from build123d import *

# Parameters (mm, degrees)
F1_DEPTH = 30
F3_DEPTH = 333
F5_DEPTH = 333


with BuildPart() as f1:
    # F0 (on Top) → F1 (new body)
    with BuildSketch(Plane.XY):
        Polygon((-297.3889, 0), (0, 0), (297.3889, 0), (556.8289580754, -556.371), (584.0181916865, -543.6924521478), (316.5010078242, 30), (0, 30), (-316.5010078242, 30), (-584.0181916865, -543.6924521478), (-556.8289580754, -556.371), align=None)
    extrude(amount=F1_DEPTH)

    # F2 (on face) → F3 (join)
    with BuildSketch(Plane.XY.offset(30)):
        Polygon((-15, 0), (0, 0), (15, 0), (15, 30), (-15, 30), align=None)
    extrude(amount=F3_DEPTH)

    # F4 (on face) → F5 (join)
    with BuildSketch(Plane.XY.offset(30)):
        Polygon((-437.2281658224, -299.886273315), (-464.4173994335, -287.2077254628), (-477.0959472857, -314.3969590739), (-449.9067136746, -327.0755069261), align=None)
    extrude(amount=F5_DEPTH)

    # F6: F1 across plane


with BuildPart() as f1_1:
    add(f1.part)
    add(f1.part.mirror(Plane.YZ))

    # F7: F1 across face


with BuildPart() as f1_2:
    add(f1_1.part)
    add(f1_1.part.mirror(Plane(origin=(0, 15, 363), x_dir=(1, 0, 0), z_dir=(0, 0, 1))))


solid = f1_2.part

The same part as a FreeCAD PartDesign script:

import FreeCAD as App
import Part
import Sketcher
from FreeCAD import Vector
Q = App.Units.Quantity

doc = App.newDocument("Part")
body = doc.addObject("PartDesign::Body", "Body")

# Sketch on XY plane
sketch1 = body.newObject("Sketcher::SketchObject", "Sketch")
sketch1.AttachmentSupport = (doc.getObject("XY_Plane"), [""])
sketch1.MapMode = "FlatFace"
sketch1.addGeometry(Part.LineSegment(Vector(-297, 0, 0), Vector(297, 0, 0)), False)
sketch1.addGeometry(Part.LineSegment(Vector(297, 0, 0), Vector(557, -556, 0)), False)
sketch1.addGeometry(Part.LineSegment(Vector(557, -556, 0), Vector(584, -544, 0)), False)
sketch1.addGeometry(Part.LineSegment(Vector(584, -544, 0), Vector(317, 30, 0)), False)
sketch1.addGeometry(Part.LineSegment(Vector(317, 30, 0), Vector(-317, 30, 0)), False)
sketch1.addGeometry(Part.LineSegment(Vector(-317, 30, 0), Vector(-584, -544, 0)), False)
sketch1.addGeometry(Part.LineSegment(Vector(-584, -544, 0), Vector(-557, -556, 0)), False)
sketch1.addGeometry(Part.LineSegment(Vector(-557, -556, 0), Vector(-297, 0, 0)), False)
sketch1.addConstraint(Sketcher.Constraint("Coincident", 0, 2, 1, 1))
sketch1.addConstraint(Sketcher.Constraint("Coincident", 1, 2, 2, 1))
sketch1.addConstraint(Sketcher.Constraint("Coincident", 2, 2, 3, 1))
sketch1.addConstraint(Sketcher.Constraint("Coincident", 3, 2, 4, 1))
sketch1.addConstraint(Sketcher.Constraint("Coincident", 4, 2, 5, 1))
sketch1.addConstraint(Sketcher.Constraint("Coincident", 5, 2, 6, 1))
sketch1.addConstraint(Sketcher.Constraint("Coincident", 6, 2, 7, 1))
sketch1.addConstraint(Sketcher.Constraint("Coincident", 7, 2, 0, 1))
sketch1.addConstraint(Sketcher.Constraint("Horizontal", 0))
sketch1.addConstraint(Sketcher.Constraint("Horizontal", 4))
sketch1.addConstraint(Sketcher.Constraint("Symmetric", 0, 2, 7, 2, -1, 1))
sketch1.addConstraint(Sketcher.Constraint("Symmetric", 2, 2, 5, 2, -2))
sketch1.addConstraint(Sketcher.Constraint("Symmetric", 1, 2, 6, 2, -2))
sketch1.addConstraint(Sketcher.Constraint("Perpendicular", 1, 2))
sketch1.addConstraint(Sketcher.Constraint("Perpendicular", 2, 3))
sketch1.addConstraint(Sketcher.Constraint("Perpendicular", 5, 6))
sketch1.addConstraint(Sketcher.Constraint("Angle", 1, Q("-65 deg")))
sketch1.addConstraint(Sketcher.Constraint("Distance", 2, Q("30 mm")))
sketch1.addConstraint(Sketcher.Constraint("DistanceY", -1, 1, 3, 2, Q("30 mm")))
sketch1.addConstraint(Sketcher.Constraint("DistanceX", 0, 1, 0, 2, Q("594.7778 mm")))
sketch1.addConstraint(Sketcher.Constraint("DistanceY", 1, 2, -1, 1, Q("556.371 mm")))
pad1 = body.newObject("PartDesign::Pad", "Pad")
pad1.Profile = sketch1
pad1.Length = 30

# Sketch on XY plane
sketch2 = body.newObject("Sketcher::SketchObject", "Sketch001")
sketch2.AttachmentSupport = (doc.getObject("XY_Plane"), [""])
sketch2.MapMode = "FlatFace"
sketch2.AttachmentOffset = App.Placement(Vector(0, 0, 30), App.Rotation())
sketch2.addGeometry(Part.LineSegment(Vector(-15, 0, 0), Vector(15, 0, 0)), False)
sketch2.addGeometry(Part.LineSegment(Vector(15, 0, 0), Vector(15, 30, 0)), False)
sketch2.addGeometry(Part.LineSegment(Vector(15, 30, 0), Vector(-15, 30, 0)), False)
sketch2.addGeometry(Part.LineSegment(Vector(-15, 30, 0), Vector(-15, 0, 0)), False)
sketch2.addConstraint(Sketcher.Constraint("Coincident", 0, 2, 1, 1))
sketch2.addConstraint(Sketcher.Constraint("Coincident", 1, 2, 2, 1))
sketch2.addConstraint(Sketcher.Constraint("Coincident", 2, 2, 3, 1))
sketch2.addConstraint(Sketcher.Constraint("Coincident", 3, 2, 0, 1))
sketch2.addConstraint(Sketcher.Constraint("Horizontal", 0))
sketch2.addConstraint(Sketcher.Constraint("Vertical", 1))
sketch2.addConstraint(Sketcher.Constraint("Horizontal", 2))
sketch2.addConstraint(Sketcher.Constraint("Vertical", 3))
sketch2.addConstraint(Sketcher.Constraint("Symmetric", 0, 2, 3, 2, -1, 1))
sketch2.addConstraint(Sketcher.Constraint("Equal", 2, 1))
sketch2.addConstraint(Sketcher.Constraint("DistanceX", 0, 1, 0, 2, Q("30 mm")))
pad2 = body.newObject("PartDesign::Pad", "Pad001")
pad2.Profile = sketch2
pad2.Length = 333

# Sketch on XY plane
sketch3 = body.newObject("Sketcher::SketchObject", "Sketch002")
sketch3.AttachmentSupport = (doc.getObject("XY_Plane"), [""])
sketch3.MapMode = "FlatFace"
sketch3.AttachmentOffset = App.Placement(Vector(0, 0, 30), App.Rotation())
sketch3.addGeometry(Part.LineSegment(Vector(-437, -300, 0), Vector(-464, -287, 0)), False)
sketch3.addGeometry(Part.LineSegment(Vector(-464, -287, 0), Vector(-477, -314, 0)), False)
sketch3.addGeometry(Part.LineSegment(Vector(-477, -314, 0), Vector(-450, -327, 0)), False)
sketch3.addGeometry(Part.LineSegment(Vector(-450, -327, 0), Vector(-437, -300, 0)), False)
sketch3.addConstraint(Sketcher.Constraint("Coincident", 0, 2, 1, 1))
sketch3.addConstraint(Sketcher.Constraint("Coincident", 1, 2, 2, 1))
sketch3.addConstraint(Sketcher.Constraint("Coincident", 2, 2, 3, 1))
sketch3.addConstraint(Sketcher.Constraint("Coincident", 3, 2, 0, 1))
sketch3.addConstraint(Sketcher.Constraint("Perpendicular", 0, 1))
sketch3.addConstraint(Sketcher.Constraint("Perpendicular", 1, 2))
sketch3.addConstraint(Sketcher.Constraint("Perpendicular", 2, 3))
sketch3.addConstraint(Sketcher.Constraint("Equal", 0, 1))
sketch3.addConstraint(Sketcher.Constraint("Angle", 0, Q("155 deg")))
sketch3.addConstraint(Sketcher.Constraint("Distance", 0, Q("30 mm")))
sketch3.addConstraint(Sketcher.Constraint("DistanceX", 0, 2, -1, 1, Q("464.417399 mm")))
sketch3.addConstraint(Sketcher.Constraint("DistanceY", 1, 2, -1, 1, Q("314.396959 mm")))
pad3 = body.newObject("PartDesign::Pad", "Pad002")
pad3.Profile = sketch3
pad3.Length = 333
body2 = doc.addObject("PartDesign::Body", "Body001")
doc.recompute()

body2.BaseFeature = body
doc.recompute()

mirroring = doc.addObject("Part::Mirroring", "Mirroring")
mirroring.Source = body
mirroring.Base = Vector(0, 0, 0)
mirroring.Normal = Vector(1, 0, 0)
body3 = doc.addObject("PartDesign::Body", "Body002")
body3.BaseFeature = mirroring
boolean = body2.newObject("PartDesign::Boolean", "Boolean")
boolean.Type = "Fuse"
boolean.addObjects([body3])
doc.recompute()
body4 = doc.addObject("PartDesign::Body", "Body003")
doc.recompute()

body4.BaseFeature = body2
doc.recompute()

mirroring2 = doc.addObject("Part::Mirroring", "Mirroring001")
mirroring2.Source = body2
mirroring2.Base = Vector(0, 15, 363)
mirroring2.Normal = Vector(0, 0, 1)
body5 = doc.addObject("PartDesign::Body", "Body004")
body5.BaseFeature = mirroring2
boolean2 = body4.newObject("PartDesign::Boolean", "Boolean001")
boolean2.Type = "Fuse"
boolean2.addObjects([body5])
doc.recompute()
mirroring.Visibility = False
mirroring2.Visibility = False

doc.recompute()
